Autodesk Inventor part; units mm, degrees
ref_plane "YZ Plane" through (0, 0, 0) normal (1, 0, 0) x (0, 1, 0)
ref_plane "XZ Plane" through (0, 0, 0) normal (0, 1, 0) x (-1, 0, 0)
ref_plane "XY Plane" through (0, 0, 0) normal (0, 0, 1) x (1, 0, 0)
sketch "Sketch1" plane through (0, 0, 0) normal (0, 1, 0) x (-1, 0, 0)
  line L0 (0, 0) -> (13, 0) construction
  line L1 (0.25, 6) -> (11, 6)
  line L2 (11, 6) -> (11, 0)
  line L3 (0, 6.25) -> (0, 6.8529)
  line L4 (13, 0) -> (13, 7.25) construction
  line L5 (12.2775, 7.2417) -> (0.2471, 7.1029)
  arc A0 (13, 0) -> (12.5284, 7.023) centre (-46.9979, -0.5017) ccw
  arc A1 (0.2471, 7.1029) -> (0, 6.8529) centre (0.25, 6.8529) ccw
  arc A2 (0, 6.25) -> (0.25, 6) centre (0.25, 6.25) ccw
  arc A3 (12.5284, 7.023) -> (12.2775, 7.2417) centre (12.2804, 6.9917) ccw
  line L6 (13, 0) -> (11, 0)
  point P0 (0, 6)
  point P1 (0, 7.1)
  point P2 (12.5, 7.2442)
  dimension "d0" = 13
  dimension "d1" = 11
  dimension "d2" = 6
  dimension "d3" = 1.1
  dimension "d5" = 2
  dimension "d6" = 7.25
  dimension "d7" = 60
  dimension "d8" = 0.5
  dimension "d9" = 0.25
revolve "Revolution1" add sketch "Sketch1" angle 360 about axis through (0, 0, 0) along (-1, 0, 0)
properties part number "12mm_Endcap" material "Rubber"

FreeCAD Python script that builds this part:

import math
import FreeCAD as App
import Part
import Sketcher

V = App.Vector
Q = App.Units.Quantity

doc = App.newDocument("Part")
body = doc.addObject("PartDesign::Body", "Body")

sketch1 = body.newObject("Sketcher::SketchObject", "Sketch")
sketch1.AttachmentSupport = (doc.getObject("XZ_Plane"), [""])
sketch1.MapMode = "FlatFace"
sketch1.addGeometry([
    Part.ArcOfCircle(Part.Circle(V(-0.25, 6.25, 0), V(0, 0, 1), 0.25), math.radians(-90), math.radians(0)),
    Part.LineSegment(V(-0.25, 6, 0), V(-11, 6, 0)),
    Part.LineSegment(V(-11, 6, 0), V(-11, 0, 0)),
    Part.LineSegment(V(-11, 0, 0), V(-13, 0, 0)),
    Part.ArcOfCircle(Part.Circle(V(47, -0.5, 0), V(0, 0, 1), 60), math.radians(172.8), math.radians(179.52)),
    Part.ArcOfCircle(Part.Circle(V(-12.28, 6.99, 0), V(0, 0, 1), 0.25), math.radians(89), math.radians(173)),
    Part.LineSegment(V(-12.28, 7.24, 0), V(-0.25, 7.1, 0)),
    Part.ArcOfCircle(Part.Circle(V(-0.25, 6.85, 0), V(0, 0, 1), 0.25), math.radians(0), math.radians(89)),
    Part.LineSegment(V(0, 6.85, 0), V(0, 6.25, 0)),
], False)
sketch1.addConstraint([
    Sketcher.Constraint("Tangent", 0, 1, 1, 1),
    Sketcher.Constraint("Coincident", 1, 2, 2, 1),
    Sketcher.Constraint("Coincident", 2, 2, 3, 1),
    Sketcher.Constraint("Coincident", 3, 2, 4, 2),
    Sketcher.Constraint("Tangent", 4, 1, 5, 2),
    Sketcher.Constraint("Tangent", 5, 1, 6, 1),
    Sketcher.Constraint("Tangent", 6, 2, 7, 2),
    Sketcher.Constraint("Tangent", 7, 1, 8, 1),
    Sketcher.Constraint("Tangent", 8, 2, 0, 2),
    Sketcher.Constraint("Horizontal", 1),
    Sketcher.Constraint("Vertical", 2),
    Sketcher.Constraint("Horizontal", 3),
    Sketcher.Constraint("Vertical", 8),
    Sketcher.Constraint("Equal", 0, 5),
    Sketcher.Constraint("Equal", 5, 7),
    Sketcher.Constraint("PointOnObject", 2, 2, -1),
    Sketcher.Constraint("PointOnObject", 7, 1, -2),
    Sketcher.Constraint("DistanceX", 3, 2, 3, 1, 2.0),
    Sketcher.Constraint("DistanceY", 2, 2, 2, 1, 6.0),
    Sketcher.Constraint("Radius", 0, 0.25),
    Sketcher.Constraint("DistanceX", 1, 2, -1, 1, 11.0),
    Sketcher.Constraint("Angle", 6, Q("-0.661 deg")),
    Sketcher.Constraint("Radius", 4, 60.0043),
    Sketcher.Constraint("DistanceY", 8, 2, 8, 1, 0.603),
    Sketcher.Constraint("Distance", 6, 12.0312),
])
revolution = body.newObject("PartDesign::Revolution", "Revolution")
revolution.Profile = sketch1
revolution.ReferenceAxis = (sketch1, ["H_Axis"])
revolution.Angle = 360

doc.recompute()
